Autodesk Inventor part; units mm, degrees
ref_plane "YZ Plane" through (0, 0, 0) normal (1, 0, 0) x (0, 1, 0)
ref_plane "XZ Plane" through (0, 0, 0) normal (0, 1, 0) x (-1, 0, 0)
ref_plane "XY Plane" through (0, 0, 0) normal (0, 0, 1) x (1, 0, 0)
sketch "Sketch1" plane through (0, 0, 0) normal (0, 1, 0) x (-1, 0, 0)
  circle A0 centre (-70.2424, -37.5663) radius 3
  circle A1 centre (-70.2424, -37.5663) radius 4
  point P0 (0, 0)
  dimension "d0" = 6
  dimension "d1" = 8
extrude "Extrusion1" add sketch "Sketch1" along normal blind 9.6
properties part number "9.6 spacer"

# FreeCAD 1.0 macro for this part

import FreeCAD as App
import Part
import Sketcher

V = App.Vector

doc = App.newDocument("Part")
params = doc.addObject("Spreadsheet::Sheet", "Params")
for row, (alias, value) in enumerate([
    ("sketch1_diameter", "8 mm"),
    ("sketch1_diameter2", "6 mm"),
    ("pad1_length", "9.6 mm"),
], start=1):
    params.set(f"A{row}", alias)
    params.set(f"B{row}", "=" + value)
    params.setAlias(f"B{row}", alias)

body = doc.addObject("PartDesign::Body", "Body")

sketch1 = doc.addObject("Sketcher::SketchObject", "Sketch")
body.addObject(sketch1)
sketch1.AttachmentSupport = (doc.XZ_Plane, [""])
sketch1.MapMode = "FlatFace"
sketch1.addGeometry(Part.Circle(V(70.2, -37.6, 0), V(0, 0, 1), 4), False)
sketch1.addGeometry(Part.Circle(V(70.2, -37.6, 0), V(0, 0, 1), 3), False)
sketch1.addConstraint(Sketcher.Constraint("Coincident", 1, 3, 0, 3))
sketch1.addConstraint(Sketcher.Constraint("Diameter", 0, 8.0))
sketch1.addConstraint(Sketcher.Constraint("Diameter", 1, 6.0))
sketch1.addConstraint(Sketcher.Constraint("DistanceX", -1, 1, 0, 3, 70.2424))
sketch1.addConstraint(Sketcher.Constraint("DistanceY", 0, 3, -1, 1, 37.5663))
sketch1.setExpression("Constraints[1]", "Params.sketch1_diameter")
sketch1.setExpression("Constraints[2]", "Params.sketch1_diameter2")
pad1 = doc.addObject("PartDesign::Pad", "Pad")
body.addObject(pad1)
pad1.Profile = sketch1
pad1.setExpression("Length", "Params.pad1_length")
pad1.Reversed = True

doc.recompute()
